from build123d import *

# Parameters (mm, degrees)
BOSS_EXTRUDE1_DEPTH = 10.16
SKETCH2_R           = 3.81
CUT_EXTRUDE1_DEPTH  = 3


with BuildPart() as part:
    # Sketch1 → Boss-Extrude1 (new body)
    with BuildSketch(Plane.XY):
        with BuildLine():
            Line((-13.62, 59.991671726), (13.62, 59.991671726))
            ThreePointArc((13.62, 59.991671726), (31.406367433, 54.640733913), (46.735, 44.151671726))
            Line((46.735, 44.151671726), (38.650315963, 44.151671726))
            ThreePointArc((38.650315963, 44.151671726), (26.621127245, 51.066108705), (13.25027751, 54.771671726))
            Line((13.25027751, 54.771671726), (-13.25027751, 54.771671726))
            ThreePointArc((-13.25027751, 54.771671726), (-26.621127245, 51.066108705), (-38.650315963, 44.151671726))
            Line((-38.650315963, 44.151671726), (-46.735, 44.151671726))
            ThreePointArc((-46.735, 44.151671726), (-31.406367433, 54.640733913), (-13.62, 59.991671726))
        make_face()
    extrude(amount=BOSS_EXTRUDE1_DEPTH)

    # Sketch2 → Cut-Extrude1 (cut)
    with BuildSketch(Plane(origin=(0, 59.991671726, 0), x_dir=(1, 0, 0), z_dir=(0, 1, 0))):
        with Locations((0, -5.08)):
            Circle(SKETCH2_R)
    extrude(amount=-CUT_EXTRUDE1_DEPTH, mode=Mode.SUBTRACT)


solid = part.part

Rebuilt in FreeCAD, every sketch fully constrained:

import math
import FreeCAD as App
import Part
import Sketcher
Q = App.Units.Quantity

doc = App.newDocument("Part")
body = doc.addObject("PartDesign::Body", "Body")

# Sketch on XY plane
sketch1 = body.newObject("Sketcher::SketchObject", "Sketch")
sketch1.AttachmentSupport = (doc.getObject("XY_Plane"), [""])
sketch1.MapMode = "FlatFace"
sketch1.addGeometry(Part.LineSegment(App.Vector(14, 60, 0), App.Vector(-14, 60, 0)), False)
sketch1.addGeometry(Part.ArcOfCircle(Part.Circle(App.Vector(-5, 0, 0), App.Vector(0, 0, 1), 61), math.radians(98), math.radians(133)), False)
sketch1.addGeometry(Part.LineSegment(App.Vector(-47, 44, 0), App.Vector(-39, 44, 0)), False)
sketch1.addGeometry(Part.ArcOfCircle(Part.Circle(App.Vector(-5, 0, 0), App.Vector(0, 0, 1), 55), math.radians(98), math.radians(127)), False)
sketch1.addGeometry(Part.LineSegment(App.Vector(-13, 55, 0), App.Vector(13, 55, 0)), False)
sketch1.addGeometry(Part.ArcOfCircle(Part.Circle(App.Vector(5, 0, 0), App.Vector(0, 0, 1), 55), math.radians(53), math.radians(82)), False)
sketch1.addGeometry(Part.LineSegment(App.Vector(39, 44, 0), App.Vector(47, 44, 0)), False)
sketch1.addGeometry(Part.ArcOfCircle(Part.Circle(App.Vector(5, 0, 0), App.Vector(0, 0, 1), 61), math.radians(47), math.radians(82)), False)
sketch1.addConstraint(Sketcher.Constraint("Coincident", 0, 2, 1, 1))
sketch1.addConstraint(Sketcher.Constraint("Coincident", 1, 2, 2, 1))
sketch1.addConstraint(Sketcher.Constraint("Coincident", 2, 2, 3, 2))
sketch1.addConstraint(Sketcher.Constraint("Coincident", 3, 1, 4, 1))
sketch1.addConstraint(Sketcher.Constraint("Coincident", 4, 2, 5, 2))
sketch1.addConstraint(Sketcher.Constraint("Coincident", 5, 1, 6, 1))
sketch1.addConstraint(Sketcher.Constraint("Coincident", 6, 2, 7, 1))
sketch1.addConstraint(Sketcher.Constraint("Coincident", 7, 2, 0, 1))
sketch1.addConstraint(Sketcher.Constraint("Horizontal", 0))
sketch1.addConstraint(Sketcher.Constraint("Horizontal", 2))
sketch1.addConstraint(Sketcher.Constraint("Horizontal", 4))
sketch1.addConstraint(Sketcher.Constraint("Horizontal", 6))
sketch1.addConstraint(Sketcher.Constraint("Coincident", 3, 3, 1, 3))
sketch1.addConstraint(Sketcher.Constraint("Coincident", 7, 3, 5, 3))
sketch1.addConstraint(Sketcher.Constraint("Equal", 3, 5))
sketch1.addConstraint(Sketcher.Constraint("Equal", 1, 7))
sketch1.addConstraint(Sketcher.Constraint("Symmetric", 1, 3, 5, 3, -1, 1))
sketch1.addConstraint(Sketcher.Constraint("Symmetric", 2, 2, 5, 1, -2))
sketch1.addConstraint(Sketcher.Constraint("Radius", 1, Q("60.57 mm")))
sketch1.addConstraint(Sketcher.Constraint("Radius", 3, Q("55.35 mm")))
sketch1.addConstraint(Sketcher.Constraint("DistanceX", 0, 2, 0, 1, Q("27.24 mm")))
sketch1.addConstraint(Sketcher.Constraint("DistanceY", 1, 2, 0, 2, Q("15.84 mm")))
sketch1.addConstraint(Sketcher.Constraint("DistanceY", 3, 1, 0, 2, Q("5.22 mm")))
sketch1.addConstraint(Sketcher.Constraint("DistanceX", 1, 2, -1, 1, Q("46.735 mm")))
pad1 = body.newObject("PartDesign::Pad", "Pad")
pad1.Profile = sketch1
pad1.Length = 10.16

# Sketch on XZ plane
sketch2 = body.newObject("Sketcher::SketchObject", "Sketch001")
sketch2.AttachmentSupport = (doc.getObject("XZ_Plane"), [""])
sketch2.MapMode = "FlatFace"
sketch2.AttachmentOffset = App.Placement(App.Vector(0, 0, -59.991672), App.Rotation())
sketch2.addGeometry(Part.Circle(App.Vector(0, 5.1, 0), App.Vector(0, 0, 1), 3.8), False)
sketch2.addConstraint(Sketcher.Constraint("PointOnObject", 0, 3, -2))
sketch2.addConstraint(Sketcher.Constraint("Diameter", 0, Q("7.62 mm")))
sketch2.addConstraint(Sketcher.Constraint("DistanceY", -1, 1, 0, 3, Q("5.08 mm")))
pocket1 = body.newObject("PartDesign::Pocket", "Pocket")
pocket1.Profile = sketch2
pocket1.Length = 3
pocket1.Reversed = True

doc.recompute()
